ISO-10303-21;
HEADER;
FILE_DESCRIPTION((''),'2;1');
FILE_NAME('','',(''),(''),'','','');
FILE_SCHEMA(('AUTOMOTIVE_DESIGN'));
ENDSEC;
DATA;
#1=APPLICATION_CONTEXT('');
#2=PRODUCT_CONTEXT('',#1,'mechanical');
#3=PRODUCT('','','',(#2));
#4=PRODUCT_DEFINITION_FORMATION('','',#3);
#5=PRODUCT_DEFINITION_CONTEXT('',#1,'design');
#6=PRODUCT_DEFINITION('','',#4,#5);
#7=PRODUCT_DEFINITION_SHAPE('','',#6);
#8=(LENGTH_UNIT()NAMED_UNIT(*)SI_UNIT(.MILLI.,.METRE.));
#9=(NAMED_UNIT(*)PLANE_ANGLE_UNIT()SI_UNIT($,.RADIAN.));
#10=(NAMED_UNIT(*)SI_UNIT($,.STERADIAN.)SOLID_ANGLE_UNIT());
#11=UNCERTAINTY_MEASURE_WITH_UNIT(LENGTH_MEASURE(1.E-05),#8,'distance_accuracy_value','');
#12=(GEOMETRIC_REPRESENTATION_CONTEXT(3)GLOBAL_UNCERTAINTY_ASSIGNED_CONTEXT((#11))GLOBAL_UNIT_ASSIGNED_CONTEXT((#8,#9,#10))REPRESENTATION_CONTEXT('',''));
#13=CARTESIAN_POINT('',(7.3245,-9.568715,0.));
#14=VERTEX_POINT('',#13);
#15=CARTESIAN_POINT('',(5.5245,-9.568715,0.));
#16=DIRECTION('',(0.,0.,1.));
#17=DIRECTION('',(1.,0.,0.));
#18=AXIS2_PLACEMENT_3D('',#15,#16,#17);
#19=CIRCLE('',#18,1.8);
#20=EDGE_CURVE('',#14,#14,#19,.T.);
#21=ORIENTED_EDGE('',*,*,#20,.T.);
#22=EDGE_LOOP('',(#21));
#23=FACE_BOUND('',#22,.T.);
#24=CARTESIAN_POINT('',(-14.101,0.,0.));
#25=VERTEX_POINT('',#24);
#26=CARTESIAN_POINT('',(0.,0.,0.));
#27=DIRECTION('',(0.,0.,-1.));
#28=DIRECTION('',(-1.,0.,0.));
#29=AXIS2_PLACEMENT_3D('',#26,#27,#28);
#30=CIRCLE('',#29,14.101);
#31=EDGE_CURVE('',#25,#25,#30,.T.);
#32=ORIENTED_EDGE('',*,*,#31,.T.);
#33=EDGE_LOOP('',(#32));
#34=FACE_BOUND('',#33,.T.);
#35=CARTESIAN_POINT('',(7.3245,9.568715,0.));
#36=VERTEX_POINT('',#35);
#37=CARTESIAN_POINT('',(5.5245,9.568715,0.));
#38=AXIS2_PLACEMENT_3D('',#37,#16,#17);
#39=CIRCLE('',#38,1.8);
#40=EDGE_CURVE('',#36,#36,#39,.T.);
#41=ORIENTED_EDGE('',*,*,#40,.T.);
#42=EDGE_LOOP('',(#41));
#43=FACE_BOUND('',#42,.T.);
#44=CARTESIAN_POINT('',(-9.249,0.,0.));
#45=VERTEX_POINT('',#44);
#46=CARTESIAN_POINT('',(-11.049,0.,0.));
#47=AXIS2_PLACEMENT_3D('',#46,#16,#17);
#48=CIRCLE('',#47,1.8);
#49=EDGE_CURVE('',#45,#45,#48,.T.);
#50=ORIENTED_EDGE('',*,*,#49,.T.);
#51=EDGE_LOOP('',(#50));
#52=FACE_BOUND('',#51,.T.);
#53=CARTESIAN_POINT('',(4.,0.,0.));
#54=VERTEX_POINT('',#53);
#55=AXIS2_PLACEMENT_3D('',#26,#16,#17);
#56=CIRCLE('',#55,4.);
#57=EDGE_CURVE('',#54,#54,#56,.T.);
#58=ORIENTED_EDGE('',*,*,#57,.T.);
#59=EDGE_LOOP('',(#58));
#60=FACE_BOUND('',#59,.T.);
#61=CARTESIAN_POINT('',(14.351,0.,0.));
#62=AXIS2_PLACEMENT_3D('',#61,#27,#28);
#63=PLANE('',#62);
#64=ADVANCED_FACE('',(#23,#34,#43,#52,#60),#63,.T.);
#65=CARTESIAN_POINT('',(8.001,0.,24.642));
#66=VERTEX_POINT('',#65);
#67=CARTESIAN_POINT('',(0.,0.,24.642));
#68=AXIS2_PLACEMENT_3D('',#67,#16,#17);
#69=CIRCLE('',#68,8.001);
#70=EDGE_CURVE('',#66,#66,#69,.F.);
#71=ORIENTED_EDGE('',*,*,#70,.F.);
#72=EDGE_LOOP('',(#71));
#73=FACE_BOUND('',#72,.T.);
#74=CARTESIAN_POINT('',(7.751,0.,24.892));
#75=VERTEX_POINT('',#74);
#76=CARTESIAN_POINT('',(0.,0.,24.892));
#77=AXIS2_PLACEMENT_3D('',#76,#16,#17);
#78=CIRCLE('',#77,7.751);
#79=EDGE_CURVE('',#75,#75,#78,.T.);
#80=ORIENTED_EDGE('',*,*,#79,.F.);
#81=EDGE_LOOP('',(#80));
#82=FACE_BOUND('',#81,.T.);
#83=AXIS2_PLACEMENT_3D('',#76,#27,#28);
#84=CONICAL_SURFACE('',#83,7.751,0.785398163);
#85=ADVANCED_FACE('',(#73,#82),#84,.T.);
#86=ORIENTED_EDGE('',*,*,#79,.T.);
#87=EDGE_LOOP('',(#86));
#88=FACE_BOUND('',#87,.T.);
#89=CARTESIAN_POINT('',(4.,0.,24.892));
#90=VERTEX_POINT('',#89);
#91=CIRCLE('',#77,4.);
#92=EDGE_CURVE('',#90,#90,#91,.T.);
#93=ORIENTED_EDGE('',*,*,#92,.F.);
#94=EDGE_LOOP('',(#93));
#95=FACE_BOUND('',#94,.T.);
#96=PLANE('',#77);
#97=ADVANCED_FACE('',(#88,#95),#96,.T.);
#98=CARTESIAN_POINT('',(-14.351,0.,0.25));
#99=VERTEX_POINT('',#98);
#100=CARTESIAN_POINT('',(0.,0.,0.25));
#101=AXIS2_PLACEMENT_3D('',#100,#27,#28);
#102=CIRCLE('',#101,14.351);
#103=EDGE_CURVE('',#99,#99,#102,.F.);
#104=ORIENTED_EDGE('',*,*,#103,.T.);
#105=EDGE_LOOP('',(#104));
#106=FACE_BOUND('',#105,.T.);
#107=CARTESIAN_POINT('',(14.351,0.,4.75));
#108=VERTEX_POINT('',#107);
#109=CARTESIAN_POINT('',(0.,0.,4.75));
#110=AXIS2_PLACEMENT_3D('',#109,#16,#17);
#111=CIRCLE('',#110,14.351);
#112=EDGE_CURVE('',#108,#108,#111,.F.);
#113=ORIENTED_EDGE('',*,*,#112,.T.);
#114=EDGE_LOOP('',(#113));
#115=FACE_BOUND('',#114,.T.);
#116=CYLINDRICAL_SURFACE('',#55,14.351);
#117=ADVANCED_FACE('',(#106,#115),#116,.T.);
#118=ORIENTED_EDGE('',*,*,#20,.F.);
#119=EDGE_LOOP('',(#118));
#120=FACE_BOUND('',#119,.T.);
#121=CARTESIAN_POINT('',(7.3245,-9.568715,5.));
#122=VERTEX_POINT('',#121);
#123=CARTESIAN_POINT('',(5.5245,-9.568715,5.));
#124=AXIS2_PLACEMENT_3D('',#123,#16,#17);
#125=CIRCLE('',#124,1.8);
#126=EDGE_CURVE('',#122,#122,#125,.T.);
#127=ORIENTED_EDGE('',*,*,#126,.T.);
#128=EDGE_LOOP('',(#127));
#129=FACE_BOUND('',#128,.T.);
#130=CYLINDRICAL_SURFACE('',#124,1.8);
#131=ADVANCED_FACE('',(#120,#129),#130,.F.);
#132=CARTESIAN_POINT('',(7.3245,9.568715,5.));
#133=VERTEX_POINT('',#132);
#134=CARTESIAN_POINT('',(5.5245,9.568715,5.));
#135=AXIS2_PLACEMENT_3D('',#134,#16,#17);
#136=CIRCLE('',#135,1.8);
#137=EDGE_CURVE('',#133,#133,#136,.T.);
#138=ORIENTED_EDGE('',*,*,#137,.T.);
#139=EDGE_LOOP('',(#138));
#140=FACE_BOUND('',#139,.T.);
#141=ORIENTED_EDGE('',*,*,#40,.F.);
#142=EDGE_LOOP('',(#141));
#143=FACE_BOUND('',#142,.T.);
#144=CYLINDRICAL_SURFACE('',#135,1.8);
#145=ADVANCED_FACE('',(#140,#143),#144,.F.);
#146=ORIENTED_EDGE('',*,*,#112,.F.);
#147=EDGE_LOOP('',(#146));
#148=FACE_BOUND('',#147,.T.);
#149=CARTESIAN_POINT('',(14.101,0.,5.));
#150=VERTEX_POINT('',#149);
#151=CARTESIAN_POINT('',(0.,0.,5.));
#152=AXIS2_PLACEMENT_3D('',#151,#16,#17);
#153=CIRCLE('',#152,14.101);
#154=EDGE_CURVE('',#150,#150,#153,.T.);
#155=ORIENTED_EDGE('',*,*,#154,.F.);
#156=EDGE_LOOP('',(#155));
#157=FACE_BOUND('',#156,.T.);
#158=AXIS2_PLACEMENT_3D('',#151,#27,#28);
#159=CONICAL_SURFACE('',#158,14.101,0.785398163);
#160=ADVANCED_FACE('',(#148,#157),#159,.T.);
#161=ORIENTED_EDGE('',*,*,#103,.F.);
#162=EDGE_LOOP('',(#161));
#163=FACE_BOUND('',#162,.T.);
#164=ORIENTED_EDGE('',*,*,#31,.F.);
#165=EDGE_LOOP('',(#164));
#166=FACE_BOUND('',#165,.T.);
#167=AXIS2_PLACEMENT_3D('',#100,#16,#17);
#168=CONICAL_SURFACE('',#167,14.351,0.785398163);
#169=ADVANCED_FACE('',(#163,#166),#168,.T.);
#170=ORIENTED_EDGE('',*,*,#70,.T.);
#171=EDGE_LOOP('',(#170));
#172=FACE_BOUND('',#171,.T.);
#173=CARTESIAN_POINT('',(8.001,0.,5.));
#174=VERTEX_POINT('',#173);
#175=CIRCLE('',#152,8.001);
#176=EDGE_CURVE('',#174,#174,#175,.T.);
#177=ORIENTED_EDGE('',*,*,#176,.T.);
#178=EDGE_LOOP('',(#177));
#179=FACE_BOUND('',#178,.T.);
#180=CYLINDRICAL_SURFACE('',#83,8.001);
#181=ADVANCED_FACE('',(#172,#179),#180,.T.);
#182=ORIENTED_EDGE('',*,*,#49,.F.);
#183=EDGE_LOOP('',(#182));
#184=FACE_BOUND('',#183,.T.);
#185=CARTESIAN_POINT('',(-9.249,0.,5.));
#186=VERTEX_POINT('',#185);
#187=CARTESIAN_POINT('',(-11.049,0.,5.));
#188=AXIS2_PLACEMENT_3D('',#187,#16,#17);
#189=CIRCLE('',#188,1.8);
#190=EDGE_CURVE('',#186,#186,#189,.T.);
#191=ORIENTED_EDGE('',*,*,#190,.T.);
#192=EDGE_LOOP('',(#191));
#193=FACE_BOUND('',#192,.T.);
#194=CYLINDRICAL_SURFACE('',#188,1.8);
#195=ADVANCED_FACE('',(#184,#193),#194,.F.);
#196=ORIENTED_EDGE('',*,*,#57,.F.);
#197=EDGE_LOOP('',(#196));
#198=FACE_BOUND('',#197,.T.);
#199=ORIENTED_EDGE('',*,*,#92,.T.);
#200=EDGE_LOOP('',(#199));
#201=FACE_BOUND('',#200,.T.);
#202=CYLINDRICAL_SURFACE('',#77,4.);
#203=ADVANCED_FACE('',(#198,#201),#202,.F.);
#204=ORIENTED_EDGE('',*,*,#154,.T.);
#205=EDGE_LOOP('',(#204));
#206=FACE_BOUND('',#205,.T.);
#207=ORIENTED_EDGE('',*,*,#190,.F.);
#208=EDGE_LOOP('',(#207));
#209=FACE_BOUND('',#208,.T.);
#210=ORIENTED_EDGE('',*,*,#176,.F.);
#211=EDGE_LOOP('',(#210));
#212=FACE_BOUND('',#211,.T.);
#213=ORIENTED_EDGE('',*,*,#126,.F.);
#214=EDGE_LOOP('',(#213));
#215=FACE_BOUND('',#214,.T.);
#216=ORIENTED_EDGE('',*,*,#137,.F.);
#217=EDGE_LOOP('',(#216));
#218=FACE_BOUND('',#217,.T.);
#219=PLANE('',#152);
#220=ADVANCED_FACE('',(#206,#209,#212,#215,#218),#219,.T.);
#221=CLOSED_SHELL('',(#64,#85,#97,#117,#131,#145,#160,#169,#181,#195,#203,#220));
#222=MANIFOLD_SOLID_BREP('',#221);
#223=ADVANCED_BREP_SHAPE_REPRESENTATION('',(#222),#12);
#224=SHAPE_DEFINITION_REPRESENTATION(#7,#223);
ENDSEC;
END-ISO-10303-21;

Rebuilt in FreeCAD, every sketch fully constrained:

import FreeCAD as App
import Part
import Sketcher
from FreeCAD import Vector


def edges_at(feature, points):
    """Names of the edges that pass closest to the given points."""
    edges = feature.Shape.Edges
    near = lambda p: min(range(len(edges)), key=lambda i: edges[i].distToShape(Part.Vertex(*p))[0])
    return sorted({f"Edge{near(p) + 1}" for p in points})

doc = App.newDocument("Part")
body = doc.addObject("PartDesign::Body", "Body")

# Sketch on XZ plane
sketch1 = body.newObject("Sketcher::SketchObject", "Sketch")
sketch1.AttachmentSupport = (doc.getObject("XZ_Plane"), [""])
sketch1.MapMode = "FlatFace"
sketch1.addGeometry(Part.LineSegment(Vector(0, 0, 0), Vector(0, 5, 0)), False)
sketch1.addGeometry(Part.LineSegment(Vector(0, 5, 0), Vector(14, 5, 0)), False)
sketch1.addGeometry(Part.LineSegment(Vector(14, 5, 0), Vector(14, 0, 0)), False)
sketch1.addGeometry(Part.LineSegment(Vector(14, 0, 0), Vector(0, 0, 0)), False)
sketch1.addConstraint(Sketcher.Constraint("Coincident", 0, 2, 1, 1))
sketch1.addConstraint(Sketcher.Constraint("Coincident", 1, 2, 2, 1))
sketch1.addConstraint(Sketcher.Constraint("Coincident", 2, 2, 3, 1))
sketch1.addConstraint(Sketcher.Constraint("Coincident", 3, 2, 0, 1))
sketch1.addConstraint(Sketcher.Constraint("Vertical", 0))
sketch1.addConstraint(Sketcher.Constraint("Horizontal", 1))
sketch1.addConstraint(Sketcher.Constraint("Vertical", 2))
sketch1.addConstraint(Sketcher.Constraint("Horizontal", 3))
sketch1.addConstraint(Sketcher.Constraint("Coincident", 3, 2, -1, 1))
sketch1.addConstraint(Sketcher.Constraint("DistanceY", 0, 1, 0, 2, 5.0))
sketch1.addConstraint(Sketcher.Constraint("DistanceX", 1, 1, 1, 2, 14.351))
revolution = body.newObject("PartDesign::Revolution", "Revolution")
revolution.Profile = sketch1
revolution.ReferenceAxis = (sketch1, ["V_Axis"])
revolution.Angle = 360

# Sketch on XY plane
sketch2 = body.newObject("Sketcher::SketchObject", "Sketch001")
sketch2.AttachmentSupport = (doc.getObject("XY_Plane"), [""])
sketch2.MapMode = "FlatFace"
sketch2.AttachmentOffset = App.Placement(Vector(0, 0, 5), App.Rotation())
sketch2.addGeometry(Part.Circle(Vector(0, 0, 0), Vector(0, 0, 1), 8), False)
sketch2.addConstraint(Sketcher.Constraint("Coincident", 0, 3, -1, 1))
sketch2.addConstraint(Sketcher.Constraint("Diameter", 0, 16.002))
pad1 = body.newObject("PartDesign::Pad", "Pad")
pad1.Profile = sketch2
pad1.Length = 19.892

# Sketch on XY plane
sketch3 = body.newObject("Sketcher::SketchObject", "Sketch002")
sketch3.AttachmentSupport = (doc.getObject("XY_Plane"), [""])
sketch3.MapMode = "FlatFace"
sketch3.AttachmentOffset = App.Placement(Vector(0, 0, 5), App.Rotation())
sketch3.addGeometry(Part.Circle(Vector(5.5, -9.6, 0), Vector(0, 0, 1), 1.8), False)
sketch3.addGeometry(Part.Circle(Vector(-11, 0, 0), Vector(0, 0, 1), 1.8), False)
sketch3.addGeometry(Part.Circle(Vector(5.5, 9.6, 0), Vector(0, 0, 1), 1.8), False)
sketch3.addConstraint(Sketcher.Constraint("Equal", 0, 1))
sketch3.addConstraint(Sketcher.Constraint("Equal", 1, 2))
sketch3.addConstraint(Sketcher.Constraint("Symmetric", 0, 3, 2, 3, -1))
sketch3.addConstraint(Sketcher.Constraint("PointOnObject", 1, 3, -1))
sketch3.addConstraint(Sketcher.Constraint("Diameter", 0, 3.6))
sketch3.addConstraint(Sketcher.Constraint("DistanceX", 1, 3, -1, 1, 11.049))
sketch3.addConstraint(Sketcher.Constraint("DistanceX", -1, 1, 0, 3, 5.5245))
sketch3.addConstraint(Sketcher.Constraint("DistanceY", 0, 3, 2, 3, 19.137429))
doc.recompute()
hole = body.newObject("PartDesign::Hole", "Hole")
hole.Profile = sketch3
hole.ThreadType = "None"
hole.Diameter = 3.6
hole.DepthType = "ThroughAll"

# Sketch on XY plane
sketch4 = body.newObject("Sketcher::SketchObject", "Sketch003")
sketch4.AttachmentSupport = (doc.getObject("XY_Plane"), [""])
sketch4.MapMode = "FlatFace"
sketch4.AttachmentOffset = App.Placement(Vector(0, 0, 24.892), App.Rotation())
sketch4.addGeometry(Part.Circle(Vector(0, 0, 0), Vector(0, 0, 1), 4), False)
sketch4.addConstraint(Sketcher.Constraint("Coincident", 0, 3, -1, 1))
sketch4.addConstraint(Sketcher.Constraint("Diameter", 0, 8.0))
doc.recompute()
hole2 = body.newObject("PartDesign::Hole", "Hole001")
hole2.Profile = sketch4
hole2.ThreadType = "None"
hole2.Diameter = 8
hole2.DepthType = "ThroughAll"
doc.recompute()

chamfer = body.newObject("PartDesign::Chamfer", "Chamfer")
chamfer.Base = (hole2, edges_at(hole2, [(-14.351, 0, 5), (-14.351, 0, 0), (-8.001, 0, 24.892)]))
chamfer.Size = 0.25

doc.recompute()
